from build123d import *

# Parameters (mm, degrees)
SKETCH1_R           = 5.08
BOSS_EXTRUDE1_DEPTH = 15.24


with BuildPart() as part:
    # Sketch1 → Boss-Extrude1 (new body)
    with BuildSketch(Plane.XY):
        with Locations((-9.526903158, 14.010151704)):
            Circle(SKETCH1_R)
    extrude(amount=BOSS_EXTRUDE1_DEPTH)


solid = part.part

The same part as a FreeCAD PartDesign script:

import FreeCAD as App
import Part
import Sketcher

V = App.Vector
Q = App.Units.Quantity

doc = App.newDocument("Part")
body = doc.addObject("PartDesign::Body", "Body")

# Sketch on XY plane
sketch1 = body.newObject("Sketcher::SketchObject", "Sketch")
sketch1.AttachmentSupport = (doc.getObject("XY_Plane"), [""])
sketch1.MapMode = "FlatFace"
sketch1.addGeometry(Part.Circle(V(-10, 14, 0), V(0, 0, 1), 5), False)
sketch1.addConstraint(Sketcher.Constraint("Diameter", 0, Q("0.4 in")))
sketch1.addConstraint(Sketcher.Constraint("DistanceY", -1, 1, 0, 3, 14.010152))
sketch1.addConstraint(Sketcher.Constraint("DistanceX", 0, 3, -1, 1, 9.526903))
pad1 = body.newObject("PartDesign::Pad", "Pad")
pad1.Profile = sketch1
pad1.Length = Q("0.6 in")

doc.recompute()
